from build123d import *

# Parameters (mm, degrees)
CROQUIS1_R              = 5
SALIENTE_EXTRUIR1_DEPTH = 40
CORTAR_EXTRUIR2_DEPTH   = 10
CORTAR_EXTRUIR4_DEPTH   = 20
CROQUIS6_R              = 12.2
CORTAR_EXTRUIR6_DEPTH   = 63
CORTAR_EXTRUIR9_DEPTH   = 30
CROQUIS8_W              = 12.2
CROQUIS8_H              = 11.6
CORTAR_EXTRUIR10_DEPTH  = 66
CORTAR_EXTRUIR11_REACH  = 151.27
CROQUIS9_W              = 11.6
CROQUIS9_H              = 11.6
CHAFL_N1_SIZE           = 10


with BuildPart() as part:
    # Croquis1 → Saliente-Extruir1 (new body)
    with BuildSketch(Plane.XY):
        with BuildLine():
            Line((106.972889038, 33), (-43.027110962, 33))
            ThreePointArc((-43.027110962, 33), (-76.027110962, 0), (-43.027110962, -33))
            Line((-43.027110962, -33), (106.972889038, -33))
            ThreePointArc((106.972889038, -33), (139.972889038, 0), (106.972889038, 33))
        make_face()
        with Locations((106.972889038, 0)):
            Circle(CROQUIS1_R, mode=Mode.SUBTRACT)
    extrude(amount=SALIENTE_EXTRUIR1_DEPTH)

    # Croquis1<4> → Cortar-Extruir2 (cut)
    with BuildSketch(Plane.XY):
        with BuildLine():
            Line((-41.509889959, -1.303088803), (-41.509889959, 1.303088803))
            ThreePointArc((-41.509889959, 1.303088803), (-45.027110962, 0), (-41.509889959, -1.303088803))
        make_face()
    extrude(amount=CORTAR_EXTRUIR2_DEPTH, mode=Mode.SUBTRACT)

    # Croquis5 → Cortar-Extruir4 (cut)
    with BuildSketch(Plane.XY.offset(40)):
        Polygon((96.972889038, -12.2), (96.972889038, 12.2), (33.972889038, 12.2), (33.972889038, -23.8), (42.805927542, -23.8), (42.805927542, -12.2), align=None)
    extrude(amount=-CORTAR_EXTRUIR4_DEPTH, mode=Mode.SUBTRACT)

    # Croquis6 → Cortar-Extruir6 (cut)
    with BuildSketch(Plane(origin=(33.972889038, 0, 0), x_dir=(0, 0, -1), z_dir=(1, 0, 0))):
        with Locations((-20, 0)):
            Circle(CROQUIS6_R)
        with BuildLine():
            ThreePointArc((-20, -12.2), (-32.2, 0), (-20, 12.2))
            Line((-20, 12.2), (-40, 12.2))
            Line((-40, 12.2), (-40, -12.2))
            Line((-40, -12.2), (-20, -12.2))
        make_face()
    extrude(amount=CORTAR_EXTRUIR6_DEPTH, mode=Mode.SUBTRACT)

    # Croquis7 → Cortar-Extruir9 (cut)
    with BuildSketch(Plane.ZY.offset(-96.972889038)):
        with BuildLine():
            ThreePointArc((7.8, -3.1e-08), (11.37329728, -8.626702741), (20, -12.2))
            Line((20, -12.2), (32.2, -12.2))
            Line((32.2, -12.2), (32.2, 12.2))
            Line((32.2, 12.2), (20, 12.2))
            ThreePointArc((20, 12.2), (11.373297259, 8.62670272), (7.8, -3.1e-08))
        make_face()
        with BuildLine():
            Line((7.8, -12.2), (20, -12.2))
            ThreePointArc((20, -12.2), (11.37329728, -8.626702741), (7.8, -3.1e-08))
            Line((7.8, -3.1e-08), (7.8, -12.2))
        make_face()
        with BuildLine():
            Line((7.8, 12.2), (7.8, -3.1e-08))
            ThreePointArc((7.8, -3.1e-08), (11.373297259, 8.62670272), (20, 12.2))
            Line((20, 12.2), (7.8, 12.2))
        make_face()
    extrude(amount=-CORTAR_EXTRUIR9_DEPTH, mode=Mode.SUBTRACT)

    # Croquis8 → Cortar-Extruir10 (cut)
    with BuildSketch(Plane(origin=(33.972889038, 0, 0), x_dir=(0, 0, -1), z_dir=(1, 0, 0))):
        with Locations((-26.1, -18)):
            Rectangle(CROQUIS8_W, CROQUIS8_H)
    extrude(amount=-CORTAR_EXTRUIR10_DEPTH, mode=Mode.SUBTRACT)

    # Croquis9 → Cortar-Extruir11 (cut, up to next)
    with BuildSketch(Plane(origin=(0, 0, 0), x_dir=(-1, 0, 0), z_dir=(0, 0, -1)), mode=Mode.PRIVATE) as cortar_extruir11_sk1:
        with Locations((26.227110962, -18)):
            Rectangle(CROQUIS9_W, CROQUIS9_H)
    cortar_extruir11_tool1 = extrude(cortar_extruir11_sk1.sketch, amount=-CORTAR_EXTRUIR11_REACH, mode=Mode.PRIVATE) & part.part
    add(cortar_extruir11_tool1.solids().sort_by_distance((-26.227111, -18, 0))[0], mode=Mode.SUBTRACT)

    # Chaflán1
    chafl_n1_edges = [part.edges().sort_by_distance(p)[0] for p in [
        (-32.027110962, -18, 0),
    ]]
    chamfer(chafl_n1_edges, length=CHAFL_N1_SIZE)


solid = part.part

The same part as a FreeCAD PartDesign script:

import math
import FreeCAD as App
import Part
import Sketcher
from FreeCAD import Vector


def edges_at(feature, points):
    """Names of the edges that pass closest to the given points."""
    edges = feature.Shape.Edges
    near = lambda p: min(range(len(edges)), key=lambda i: edges[i].distToShape(Part.Vertex(*p))[0])
    return sorted({f"Edge{near(p) + 1}" for p in points})


def add_polygon(sketch, points):
    """Adds a closed chain of lines whose ends are joined by coincident constraints."""
    first, n = sketch.GeometryCount, len(points)
    for a, b in zip(points, points[1:] + points[:1]):
        sketch.addGeometry(Part.LineSegment(App.Vector(*a, 0), App.Vector(*b, 0)), False)
    for i in range(n):
        sketch.addConstraint(Sketcher.Constraint("Coincident", first + i, 2, first + (i + 1) % n, 1))

doc = App.newDocument("Part")
body = doc.addObject("PartDesign::Body", "Body")

# Sketch on XY plane
sketch1 = body.newObject("Sketcher::SketchObject", "Sketch")
sketch1.AttachmentSupport = (doc.getObject("XY_Plane"), [""])
sketch1.MapMode = "FlatFace"
sketch1.addGeometry([
    Part.LineSegment(Vector(107, 33, 0), Vector(-43, 33, 0)),  # 0
    Part.ArcOfCircle(Part.Circle(Vector(-43, 0, 0), Vector(0, 0, 1), 33), math.radians(90), math.radians(270)),  # 1
    Part.LineSegment(Vector(-43, -33, 0), Vector(107, -33, 0)),  # 2
    Part.ArcOfCircle(Part.Circle(Vector(107, 0, 0), Vector(0, 0, 1), 33), math.radians(-90), math.radians(90)),  # 3
    Part.Circle(Vector(107, 0, 0), Vector(0, 0, 1), 5),  # 4
], False)
sketch1.addConstraint([
    Sketcher.Constraint("Tangent", 0, 2, 1, 1),
    Sketcher.Constraint("Tangent", 1, 2, 2, 1),
    Sketcher.Constraint("Tangent", 2, 2, 3, 1),
    Sketcher.Constraint("Tangent", 3, 2, 0, 1),
    Sketcher.Constraint("Horizontal", 0),
    Sketcher.Constraint("Horizontal", 2),
    Sketcher.Constraint("Coincident", 4, 3, 3, 3),
    Sketcher.Constraint("PointOnObject", 1, 3, -1),
    Sketcher.Constraint("Diameter", 4, 10.0),
    Sketcher.Constraint("Radius", 1, 33.0),
    Sketcher.Constraint("DistanceX", 0, 2, 0, 1, 150.0),
    Sketcher.Constraint("DistanceX", 1, 3, -1, 1, 43.027111),
])
pad1 = body.newObject("PartDesign::Pad", "Pad")
pad1.Profile = sketch1
pad1.Length = 40

# Sketch on XY plane
sketch2 = body.newObject("Sketcher::SketchObject", "Sketch001")
sketch2.AttachmentSupport = (doc.getObject("XY_Plane"), [""])
sketch2.MapMode = "FlatFace"
sketch2.addGeometry([
    Part.LineSegment(Vector(-41.5, -1.3, 0), Vector(-41.5, 1.3, 0)),
    Part.ArcOfCircle(Part.Circle(Vector(-43, 0, 0), Vector(0, 0, 1), 2), math.radians(41), math.radians(319)),
], False)
sketch2.addConstraint([
    Sketcher.Constraint("Coincident", 0, 1, 1, 2),
    Sketcher.Constraint("Coincident", 1, 1, 0, 2),
    Sketcher.Constraint("Vertical", 0),
    Sketcher.Constraint("PointOnObject", 1, 3, -1),
    Sketcher.Constraint("Radius", 1, 2.0),
    Sketcher.Constraint("DistanceY", 0, 1, 0, 2, 2.606178),
    Sketcher.Constraint("DistanceX", 1, 3, -1, 1, 43.027111),
])
pocket1 = body.newObject("PartDesign::Pocket", "Pocket")
pocket1.Profile = sketch2
pocket1.Length = 10
pocket1.Reversed = True

# Sketch on XY plane
sketch3 = body.newObject("Sketcher::SketchObject", "Sketch002")
sketch3.AttachmentSupport = (doc.getObject("XY_Plane"), [""])
sketch3.MapMode = "FlatFace"
sketch3.AttachmentOffset = App.Placement(Vector(0, 0, 40), App.Rotation())
add_polygon(sketch3, [(97, -12), (97, 12), (34, 12), (34, -24), (43, -24), (43, -12)])  # lines 0-5
sketch3.addConstraint([
    Sketcher.Constraint("Vertical", 0),
    Sketcher.Constraint("Horizontal", 1),
    Sketcher.Constraint("Vertical", 2),
    Sketcher.Constraint("Horizontal", 3),
    Sketcher.Constraint("Vertical", 4),
    Sketcher.Constraint("Horizontal", 5),
    Sketcher.Constraint("DistanceX", 1, 2, 1, 1, 63.0),
    Sketcher.Constraint("DistanceY", 2, 2, 2, 1, 36.0),
    Sketcher.Constraint("DistanceY", 0, 1, 0, 2, 24.4),
    Sketcher.Constraint("DistanceY", -1, 1, 0, 2, 12.2),
    Sketcher.Constraint("DistanceX", 3, 1, 3, 2, 8.833039),
    Sketcher.Constraint("DistanceX", -1, 1, 0, 2, 96.972889),
])
pocket2 = body.newObject("PartDesign::Pocket", "Pocket001")
pocket2.Profile = sketch3
pocket2.Length = 20

# Sketch on YZ plane
sketch4 = body.newObject("Sketcher::SketchObject", "Sketch003")
sketch4.AttachmentSupport = (doc.getObject("YZ_Plane"), [""])
sketch4.MapMode = "FlatFace"
sketch4.AttachmentOffset = App.Placement(Vector(0, 0, 33.972889), App.Rotation())
sketch4.addGeometry([
    Part.LineSegment(Vector(12, 20, 0), Vector(12, 40, 0)),
    Part.LineSegment(Vector(12, 40, 0), Vector(-12, 40, 0)),
    Part.LineSegment(Vector(-12, 40, 0), Vector(-12, 20, 0)),
    Part.ArcOfCircle(Part.Circle(Vector(0, 20, 0), Vector(0, 0, 1), 12), math.radians(180), math.radians(360)),
], False)
sketch4.addConstraint([
    Sketcher.Constraint("Coincident", 0, 2, 1, 1),
    Sketcher.Constraint("Coincident", 1, 2, 2, 1),
    Sketcher.Constraint("Tangent", 2, 2, 3, 1),
    Sketcher.Constraint("Tangent", 3, 2, 0, 1),
    Sketcher.Constraint("Vertical", 0),
    Sketcher.Constraint("Horizontal", 1),
    Sketcher.Constraint("Vertical", 2),
    Sketcher.Constraint("PointOnObject", 3, 3, -2),
    Sketcher.Constraint("Radius", 3, 12.2),
    Sketcher.Constraint("DistanceY", 0, 1, 0, 2, 20.0),
    Sketcher.Constraint("DistanceY", -1, 1, 3, 3, 20.0),
])
pocket3 = body.newObject("PartDesign::Pocket", "Pocket002")
pocket3.Profile = sketch4
pocket3.Length = 63
pocket3.Reversed = True

# Sketch on YZ plane
sketch5 = body.newObject("Sketcher::SketchObject", "Sketch004")
sketch5.AttachmentSupport = (doc.getObject("YZ_Plane"), [""])
sketch5.MapMode = "FlatFace"
sketch5.AttachmentOffset = App.Placement(Vector(0, 0, 96.972889), App.Rotation())
add_polygon(sketch5, [(-12, 32), (12, 32), (12, 8), (-12, 8)])  # lines 0-3
sketch5.addConstraint([
    Sketcher.Constraint("Horizontal", 0),
    Sketcher.Constraint("Vertical", 1),
    Sketcher.Constraint("Horizontal", 2),
    Sketcher.Constraint("Vertical", 3),
    Sketcher.Constraint("Equal", 2, 1),
    Sketcher.Constraint("DistanceX", 0, 1, 0, 2, 24.4),
    Sketcher.Constraint("DistanceX", -1, 1, 0, 2, 12.2),
    Sketcher.Constraint("DistanceY", -1, 1, 0, 2, 32.2),
])
pocket4 = body.newObject("PartDesign::Pocket", "Pocket003")
pocket4.Profile = sketch5
pocket4.Length = 30
pocket4.Reversed = True

# Sketch on YZ plane
sketch6 = body.newObject("Sketcher::SketchObject", "Sketch005")
sketch6.AttachmentSupport = (doc.getObject("YZ_Plane"), [""])
sketch6.MapMode = "FlatFace"
sketch6.AttachmentOffset = App.Placement(Vector(0, 0, 33.972889), App.Rotation())
add_polygon(sketch6, [(-12, 32), (-24, 32), (-24, 20), (-12, 20)])  # lines 0-3
sketch6.addConstraint([
    Sketcher.Constraint("Horizontal", 0),
    Sketcher.Constraint("Vertical", 1),
    Sketcher.Constraint("Horizontal", 2),
    Sketcher.Constraint("Vertical", 3),
    Sketcher.Constraint("DistanceX", 0, 2, 0, 1, 11.6),
    Sketcher.Constraint("DistanceY", 1, 2, 1, 1, 12.2),
    Sketcher.Constraint("DistanceY", -1, 1, 1, 2, 20.0),
    Sketcher.Constraint("DistanceX", 0, 2, -1, 1, 23.8),
])
pocket5 = body.newObject("PartDesign::Pocket", "Pocket004")
pocket5.Profile = sketch6
pocket5.Length = 66

# Sketch on XY plane
sketch7 = body.newObject("Sketcher::SketchObject", "Sketch006")
sketch7.AttachmentSupport = (doc.getObject("XY_Plane"), [""])
sketch7.MapMode = "FlatFace"
add_polygon(sketch7, [(-20, -12), (-20, -24), (-32, -24), (-32, -12)])  # lines 0-3
sketch7.addConstraint([
    Sketcher.Constraint("Vertical", 0),
    Sketcher.Constraint("Horizontal", 1),
    Sketcher.Constraint("Vertical", 2),
    Sketcher.Constraint("Horizontal", 3),
    Sketcher.Constraint("Equal", 3, 0),
    Sketcher.Constraint("DistanceX", 1, 2, 1, 1, 11.6),
    Sketcher.Constraint("DistanceY", 0, 2, -1, 1, 23.8),
    Sketcher.Constraint("DistanceX", 0, 2, -1, 1, 20.427111),
])
pocket6 = body.newObject("PartDesign::Pocket", "Pocket005")
pocket6.Profile = sketch7
pocket6.Type = "UpToFirst"
pocket6.Reversed = True
doc.recompute()

chamfer = body.newObject("PartDesign::Chamfer", "Chamfer")
chamfer.Base = (pocket6, edges_at(pocket6, [(-32.027, -18, 0)]))
chamfer.Size = 10

doc.recompute()
